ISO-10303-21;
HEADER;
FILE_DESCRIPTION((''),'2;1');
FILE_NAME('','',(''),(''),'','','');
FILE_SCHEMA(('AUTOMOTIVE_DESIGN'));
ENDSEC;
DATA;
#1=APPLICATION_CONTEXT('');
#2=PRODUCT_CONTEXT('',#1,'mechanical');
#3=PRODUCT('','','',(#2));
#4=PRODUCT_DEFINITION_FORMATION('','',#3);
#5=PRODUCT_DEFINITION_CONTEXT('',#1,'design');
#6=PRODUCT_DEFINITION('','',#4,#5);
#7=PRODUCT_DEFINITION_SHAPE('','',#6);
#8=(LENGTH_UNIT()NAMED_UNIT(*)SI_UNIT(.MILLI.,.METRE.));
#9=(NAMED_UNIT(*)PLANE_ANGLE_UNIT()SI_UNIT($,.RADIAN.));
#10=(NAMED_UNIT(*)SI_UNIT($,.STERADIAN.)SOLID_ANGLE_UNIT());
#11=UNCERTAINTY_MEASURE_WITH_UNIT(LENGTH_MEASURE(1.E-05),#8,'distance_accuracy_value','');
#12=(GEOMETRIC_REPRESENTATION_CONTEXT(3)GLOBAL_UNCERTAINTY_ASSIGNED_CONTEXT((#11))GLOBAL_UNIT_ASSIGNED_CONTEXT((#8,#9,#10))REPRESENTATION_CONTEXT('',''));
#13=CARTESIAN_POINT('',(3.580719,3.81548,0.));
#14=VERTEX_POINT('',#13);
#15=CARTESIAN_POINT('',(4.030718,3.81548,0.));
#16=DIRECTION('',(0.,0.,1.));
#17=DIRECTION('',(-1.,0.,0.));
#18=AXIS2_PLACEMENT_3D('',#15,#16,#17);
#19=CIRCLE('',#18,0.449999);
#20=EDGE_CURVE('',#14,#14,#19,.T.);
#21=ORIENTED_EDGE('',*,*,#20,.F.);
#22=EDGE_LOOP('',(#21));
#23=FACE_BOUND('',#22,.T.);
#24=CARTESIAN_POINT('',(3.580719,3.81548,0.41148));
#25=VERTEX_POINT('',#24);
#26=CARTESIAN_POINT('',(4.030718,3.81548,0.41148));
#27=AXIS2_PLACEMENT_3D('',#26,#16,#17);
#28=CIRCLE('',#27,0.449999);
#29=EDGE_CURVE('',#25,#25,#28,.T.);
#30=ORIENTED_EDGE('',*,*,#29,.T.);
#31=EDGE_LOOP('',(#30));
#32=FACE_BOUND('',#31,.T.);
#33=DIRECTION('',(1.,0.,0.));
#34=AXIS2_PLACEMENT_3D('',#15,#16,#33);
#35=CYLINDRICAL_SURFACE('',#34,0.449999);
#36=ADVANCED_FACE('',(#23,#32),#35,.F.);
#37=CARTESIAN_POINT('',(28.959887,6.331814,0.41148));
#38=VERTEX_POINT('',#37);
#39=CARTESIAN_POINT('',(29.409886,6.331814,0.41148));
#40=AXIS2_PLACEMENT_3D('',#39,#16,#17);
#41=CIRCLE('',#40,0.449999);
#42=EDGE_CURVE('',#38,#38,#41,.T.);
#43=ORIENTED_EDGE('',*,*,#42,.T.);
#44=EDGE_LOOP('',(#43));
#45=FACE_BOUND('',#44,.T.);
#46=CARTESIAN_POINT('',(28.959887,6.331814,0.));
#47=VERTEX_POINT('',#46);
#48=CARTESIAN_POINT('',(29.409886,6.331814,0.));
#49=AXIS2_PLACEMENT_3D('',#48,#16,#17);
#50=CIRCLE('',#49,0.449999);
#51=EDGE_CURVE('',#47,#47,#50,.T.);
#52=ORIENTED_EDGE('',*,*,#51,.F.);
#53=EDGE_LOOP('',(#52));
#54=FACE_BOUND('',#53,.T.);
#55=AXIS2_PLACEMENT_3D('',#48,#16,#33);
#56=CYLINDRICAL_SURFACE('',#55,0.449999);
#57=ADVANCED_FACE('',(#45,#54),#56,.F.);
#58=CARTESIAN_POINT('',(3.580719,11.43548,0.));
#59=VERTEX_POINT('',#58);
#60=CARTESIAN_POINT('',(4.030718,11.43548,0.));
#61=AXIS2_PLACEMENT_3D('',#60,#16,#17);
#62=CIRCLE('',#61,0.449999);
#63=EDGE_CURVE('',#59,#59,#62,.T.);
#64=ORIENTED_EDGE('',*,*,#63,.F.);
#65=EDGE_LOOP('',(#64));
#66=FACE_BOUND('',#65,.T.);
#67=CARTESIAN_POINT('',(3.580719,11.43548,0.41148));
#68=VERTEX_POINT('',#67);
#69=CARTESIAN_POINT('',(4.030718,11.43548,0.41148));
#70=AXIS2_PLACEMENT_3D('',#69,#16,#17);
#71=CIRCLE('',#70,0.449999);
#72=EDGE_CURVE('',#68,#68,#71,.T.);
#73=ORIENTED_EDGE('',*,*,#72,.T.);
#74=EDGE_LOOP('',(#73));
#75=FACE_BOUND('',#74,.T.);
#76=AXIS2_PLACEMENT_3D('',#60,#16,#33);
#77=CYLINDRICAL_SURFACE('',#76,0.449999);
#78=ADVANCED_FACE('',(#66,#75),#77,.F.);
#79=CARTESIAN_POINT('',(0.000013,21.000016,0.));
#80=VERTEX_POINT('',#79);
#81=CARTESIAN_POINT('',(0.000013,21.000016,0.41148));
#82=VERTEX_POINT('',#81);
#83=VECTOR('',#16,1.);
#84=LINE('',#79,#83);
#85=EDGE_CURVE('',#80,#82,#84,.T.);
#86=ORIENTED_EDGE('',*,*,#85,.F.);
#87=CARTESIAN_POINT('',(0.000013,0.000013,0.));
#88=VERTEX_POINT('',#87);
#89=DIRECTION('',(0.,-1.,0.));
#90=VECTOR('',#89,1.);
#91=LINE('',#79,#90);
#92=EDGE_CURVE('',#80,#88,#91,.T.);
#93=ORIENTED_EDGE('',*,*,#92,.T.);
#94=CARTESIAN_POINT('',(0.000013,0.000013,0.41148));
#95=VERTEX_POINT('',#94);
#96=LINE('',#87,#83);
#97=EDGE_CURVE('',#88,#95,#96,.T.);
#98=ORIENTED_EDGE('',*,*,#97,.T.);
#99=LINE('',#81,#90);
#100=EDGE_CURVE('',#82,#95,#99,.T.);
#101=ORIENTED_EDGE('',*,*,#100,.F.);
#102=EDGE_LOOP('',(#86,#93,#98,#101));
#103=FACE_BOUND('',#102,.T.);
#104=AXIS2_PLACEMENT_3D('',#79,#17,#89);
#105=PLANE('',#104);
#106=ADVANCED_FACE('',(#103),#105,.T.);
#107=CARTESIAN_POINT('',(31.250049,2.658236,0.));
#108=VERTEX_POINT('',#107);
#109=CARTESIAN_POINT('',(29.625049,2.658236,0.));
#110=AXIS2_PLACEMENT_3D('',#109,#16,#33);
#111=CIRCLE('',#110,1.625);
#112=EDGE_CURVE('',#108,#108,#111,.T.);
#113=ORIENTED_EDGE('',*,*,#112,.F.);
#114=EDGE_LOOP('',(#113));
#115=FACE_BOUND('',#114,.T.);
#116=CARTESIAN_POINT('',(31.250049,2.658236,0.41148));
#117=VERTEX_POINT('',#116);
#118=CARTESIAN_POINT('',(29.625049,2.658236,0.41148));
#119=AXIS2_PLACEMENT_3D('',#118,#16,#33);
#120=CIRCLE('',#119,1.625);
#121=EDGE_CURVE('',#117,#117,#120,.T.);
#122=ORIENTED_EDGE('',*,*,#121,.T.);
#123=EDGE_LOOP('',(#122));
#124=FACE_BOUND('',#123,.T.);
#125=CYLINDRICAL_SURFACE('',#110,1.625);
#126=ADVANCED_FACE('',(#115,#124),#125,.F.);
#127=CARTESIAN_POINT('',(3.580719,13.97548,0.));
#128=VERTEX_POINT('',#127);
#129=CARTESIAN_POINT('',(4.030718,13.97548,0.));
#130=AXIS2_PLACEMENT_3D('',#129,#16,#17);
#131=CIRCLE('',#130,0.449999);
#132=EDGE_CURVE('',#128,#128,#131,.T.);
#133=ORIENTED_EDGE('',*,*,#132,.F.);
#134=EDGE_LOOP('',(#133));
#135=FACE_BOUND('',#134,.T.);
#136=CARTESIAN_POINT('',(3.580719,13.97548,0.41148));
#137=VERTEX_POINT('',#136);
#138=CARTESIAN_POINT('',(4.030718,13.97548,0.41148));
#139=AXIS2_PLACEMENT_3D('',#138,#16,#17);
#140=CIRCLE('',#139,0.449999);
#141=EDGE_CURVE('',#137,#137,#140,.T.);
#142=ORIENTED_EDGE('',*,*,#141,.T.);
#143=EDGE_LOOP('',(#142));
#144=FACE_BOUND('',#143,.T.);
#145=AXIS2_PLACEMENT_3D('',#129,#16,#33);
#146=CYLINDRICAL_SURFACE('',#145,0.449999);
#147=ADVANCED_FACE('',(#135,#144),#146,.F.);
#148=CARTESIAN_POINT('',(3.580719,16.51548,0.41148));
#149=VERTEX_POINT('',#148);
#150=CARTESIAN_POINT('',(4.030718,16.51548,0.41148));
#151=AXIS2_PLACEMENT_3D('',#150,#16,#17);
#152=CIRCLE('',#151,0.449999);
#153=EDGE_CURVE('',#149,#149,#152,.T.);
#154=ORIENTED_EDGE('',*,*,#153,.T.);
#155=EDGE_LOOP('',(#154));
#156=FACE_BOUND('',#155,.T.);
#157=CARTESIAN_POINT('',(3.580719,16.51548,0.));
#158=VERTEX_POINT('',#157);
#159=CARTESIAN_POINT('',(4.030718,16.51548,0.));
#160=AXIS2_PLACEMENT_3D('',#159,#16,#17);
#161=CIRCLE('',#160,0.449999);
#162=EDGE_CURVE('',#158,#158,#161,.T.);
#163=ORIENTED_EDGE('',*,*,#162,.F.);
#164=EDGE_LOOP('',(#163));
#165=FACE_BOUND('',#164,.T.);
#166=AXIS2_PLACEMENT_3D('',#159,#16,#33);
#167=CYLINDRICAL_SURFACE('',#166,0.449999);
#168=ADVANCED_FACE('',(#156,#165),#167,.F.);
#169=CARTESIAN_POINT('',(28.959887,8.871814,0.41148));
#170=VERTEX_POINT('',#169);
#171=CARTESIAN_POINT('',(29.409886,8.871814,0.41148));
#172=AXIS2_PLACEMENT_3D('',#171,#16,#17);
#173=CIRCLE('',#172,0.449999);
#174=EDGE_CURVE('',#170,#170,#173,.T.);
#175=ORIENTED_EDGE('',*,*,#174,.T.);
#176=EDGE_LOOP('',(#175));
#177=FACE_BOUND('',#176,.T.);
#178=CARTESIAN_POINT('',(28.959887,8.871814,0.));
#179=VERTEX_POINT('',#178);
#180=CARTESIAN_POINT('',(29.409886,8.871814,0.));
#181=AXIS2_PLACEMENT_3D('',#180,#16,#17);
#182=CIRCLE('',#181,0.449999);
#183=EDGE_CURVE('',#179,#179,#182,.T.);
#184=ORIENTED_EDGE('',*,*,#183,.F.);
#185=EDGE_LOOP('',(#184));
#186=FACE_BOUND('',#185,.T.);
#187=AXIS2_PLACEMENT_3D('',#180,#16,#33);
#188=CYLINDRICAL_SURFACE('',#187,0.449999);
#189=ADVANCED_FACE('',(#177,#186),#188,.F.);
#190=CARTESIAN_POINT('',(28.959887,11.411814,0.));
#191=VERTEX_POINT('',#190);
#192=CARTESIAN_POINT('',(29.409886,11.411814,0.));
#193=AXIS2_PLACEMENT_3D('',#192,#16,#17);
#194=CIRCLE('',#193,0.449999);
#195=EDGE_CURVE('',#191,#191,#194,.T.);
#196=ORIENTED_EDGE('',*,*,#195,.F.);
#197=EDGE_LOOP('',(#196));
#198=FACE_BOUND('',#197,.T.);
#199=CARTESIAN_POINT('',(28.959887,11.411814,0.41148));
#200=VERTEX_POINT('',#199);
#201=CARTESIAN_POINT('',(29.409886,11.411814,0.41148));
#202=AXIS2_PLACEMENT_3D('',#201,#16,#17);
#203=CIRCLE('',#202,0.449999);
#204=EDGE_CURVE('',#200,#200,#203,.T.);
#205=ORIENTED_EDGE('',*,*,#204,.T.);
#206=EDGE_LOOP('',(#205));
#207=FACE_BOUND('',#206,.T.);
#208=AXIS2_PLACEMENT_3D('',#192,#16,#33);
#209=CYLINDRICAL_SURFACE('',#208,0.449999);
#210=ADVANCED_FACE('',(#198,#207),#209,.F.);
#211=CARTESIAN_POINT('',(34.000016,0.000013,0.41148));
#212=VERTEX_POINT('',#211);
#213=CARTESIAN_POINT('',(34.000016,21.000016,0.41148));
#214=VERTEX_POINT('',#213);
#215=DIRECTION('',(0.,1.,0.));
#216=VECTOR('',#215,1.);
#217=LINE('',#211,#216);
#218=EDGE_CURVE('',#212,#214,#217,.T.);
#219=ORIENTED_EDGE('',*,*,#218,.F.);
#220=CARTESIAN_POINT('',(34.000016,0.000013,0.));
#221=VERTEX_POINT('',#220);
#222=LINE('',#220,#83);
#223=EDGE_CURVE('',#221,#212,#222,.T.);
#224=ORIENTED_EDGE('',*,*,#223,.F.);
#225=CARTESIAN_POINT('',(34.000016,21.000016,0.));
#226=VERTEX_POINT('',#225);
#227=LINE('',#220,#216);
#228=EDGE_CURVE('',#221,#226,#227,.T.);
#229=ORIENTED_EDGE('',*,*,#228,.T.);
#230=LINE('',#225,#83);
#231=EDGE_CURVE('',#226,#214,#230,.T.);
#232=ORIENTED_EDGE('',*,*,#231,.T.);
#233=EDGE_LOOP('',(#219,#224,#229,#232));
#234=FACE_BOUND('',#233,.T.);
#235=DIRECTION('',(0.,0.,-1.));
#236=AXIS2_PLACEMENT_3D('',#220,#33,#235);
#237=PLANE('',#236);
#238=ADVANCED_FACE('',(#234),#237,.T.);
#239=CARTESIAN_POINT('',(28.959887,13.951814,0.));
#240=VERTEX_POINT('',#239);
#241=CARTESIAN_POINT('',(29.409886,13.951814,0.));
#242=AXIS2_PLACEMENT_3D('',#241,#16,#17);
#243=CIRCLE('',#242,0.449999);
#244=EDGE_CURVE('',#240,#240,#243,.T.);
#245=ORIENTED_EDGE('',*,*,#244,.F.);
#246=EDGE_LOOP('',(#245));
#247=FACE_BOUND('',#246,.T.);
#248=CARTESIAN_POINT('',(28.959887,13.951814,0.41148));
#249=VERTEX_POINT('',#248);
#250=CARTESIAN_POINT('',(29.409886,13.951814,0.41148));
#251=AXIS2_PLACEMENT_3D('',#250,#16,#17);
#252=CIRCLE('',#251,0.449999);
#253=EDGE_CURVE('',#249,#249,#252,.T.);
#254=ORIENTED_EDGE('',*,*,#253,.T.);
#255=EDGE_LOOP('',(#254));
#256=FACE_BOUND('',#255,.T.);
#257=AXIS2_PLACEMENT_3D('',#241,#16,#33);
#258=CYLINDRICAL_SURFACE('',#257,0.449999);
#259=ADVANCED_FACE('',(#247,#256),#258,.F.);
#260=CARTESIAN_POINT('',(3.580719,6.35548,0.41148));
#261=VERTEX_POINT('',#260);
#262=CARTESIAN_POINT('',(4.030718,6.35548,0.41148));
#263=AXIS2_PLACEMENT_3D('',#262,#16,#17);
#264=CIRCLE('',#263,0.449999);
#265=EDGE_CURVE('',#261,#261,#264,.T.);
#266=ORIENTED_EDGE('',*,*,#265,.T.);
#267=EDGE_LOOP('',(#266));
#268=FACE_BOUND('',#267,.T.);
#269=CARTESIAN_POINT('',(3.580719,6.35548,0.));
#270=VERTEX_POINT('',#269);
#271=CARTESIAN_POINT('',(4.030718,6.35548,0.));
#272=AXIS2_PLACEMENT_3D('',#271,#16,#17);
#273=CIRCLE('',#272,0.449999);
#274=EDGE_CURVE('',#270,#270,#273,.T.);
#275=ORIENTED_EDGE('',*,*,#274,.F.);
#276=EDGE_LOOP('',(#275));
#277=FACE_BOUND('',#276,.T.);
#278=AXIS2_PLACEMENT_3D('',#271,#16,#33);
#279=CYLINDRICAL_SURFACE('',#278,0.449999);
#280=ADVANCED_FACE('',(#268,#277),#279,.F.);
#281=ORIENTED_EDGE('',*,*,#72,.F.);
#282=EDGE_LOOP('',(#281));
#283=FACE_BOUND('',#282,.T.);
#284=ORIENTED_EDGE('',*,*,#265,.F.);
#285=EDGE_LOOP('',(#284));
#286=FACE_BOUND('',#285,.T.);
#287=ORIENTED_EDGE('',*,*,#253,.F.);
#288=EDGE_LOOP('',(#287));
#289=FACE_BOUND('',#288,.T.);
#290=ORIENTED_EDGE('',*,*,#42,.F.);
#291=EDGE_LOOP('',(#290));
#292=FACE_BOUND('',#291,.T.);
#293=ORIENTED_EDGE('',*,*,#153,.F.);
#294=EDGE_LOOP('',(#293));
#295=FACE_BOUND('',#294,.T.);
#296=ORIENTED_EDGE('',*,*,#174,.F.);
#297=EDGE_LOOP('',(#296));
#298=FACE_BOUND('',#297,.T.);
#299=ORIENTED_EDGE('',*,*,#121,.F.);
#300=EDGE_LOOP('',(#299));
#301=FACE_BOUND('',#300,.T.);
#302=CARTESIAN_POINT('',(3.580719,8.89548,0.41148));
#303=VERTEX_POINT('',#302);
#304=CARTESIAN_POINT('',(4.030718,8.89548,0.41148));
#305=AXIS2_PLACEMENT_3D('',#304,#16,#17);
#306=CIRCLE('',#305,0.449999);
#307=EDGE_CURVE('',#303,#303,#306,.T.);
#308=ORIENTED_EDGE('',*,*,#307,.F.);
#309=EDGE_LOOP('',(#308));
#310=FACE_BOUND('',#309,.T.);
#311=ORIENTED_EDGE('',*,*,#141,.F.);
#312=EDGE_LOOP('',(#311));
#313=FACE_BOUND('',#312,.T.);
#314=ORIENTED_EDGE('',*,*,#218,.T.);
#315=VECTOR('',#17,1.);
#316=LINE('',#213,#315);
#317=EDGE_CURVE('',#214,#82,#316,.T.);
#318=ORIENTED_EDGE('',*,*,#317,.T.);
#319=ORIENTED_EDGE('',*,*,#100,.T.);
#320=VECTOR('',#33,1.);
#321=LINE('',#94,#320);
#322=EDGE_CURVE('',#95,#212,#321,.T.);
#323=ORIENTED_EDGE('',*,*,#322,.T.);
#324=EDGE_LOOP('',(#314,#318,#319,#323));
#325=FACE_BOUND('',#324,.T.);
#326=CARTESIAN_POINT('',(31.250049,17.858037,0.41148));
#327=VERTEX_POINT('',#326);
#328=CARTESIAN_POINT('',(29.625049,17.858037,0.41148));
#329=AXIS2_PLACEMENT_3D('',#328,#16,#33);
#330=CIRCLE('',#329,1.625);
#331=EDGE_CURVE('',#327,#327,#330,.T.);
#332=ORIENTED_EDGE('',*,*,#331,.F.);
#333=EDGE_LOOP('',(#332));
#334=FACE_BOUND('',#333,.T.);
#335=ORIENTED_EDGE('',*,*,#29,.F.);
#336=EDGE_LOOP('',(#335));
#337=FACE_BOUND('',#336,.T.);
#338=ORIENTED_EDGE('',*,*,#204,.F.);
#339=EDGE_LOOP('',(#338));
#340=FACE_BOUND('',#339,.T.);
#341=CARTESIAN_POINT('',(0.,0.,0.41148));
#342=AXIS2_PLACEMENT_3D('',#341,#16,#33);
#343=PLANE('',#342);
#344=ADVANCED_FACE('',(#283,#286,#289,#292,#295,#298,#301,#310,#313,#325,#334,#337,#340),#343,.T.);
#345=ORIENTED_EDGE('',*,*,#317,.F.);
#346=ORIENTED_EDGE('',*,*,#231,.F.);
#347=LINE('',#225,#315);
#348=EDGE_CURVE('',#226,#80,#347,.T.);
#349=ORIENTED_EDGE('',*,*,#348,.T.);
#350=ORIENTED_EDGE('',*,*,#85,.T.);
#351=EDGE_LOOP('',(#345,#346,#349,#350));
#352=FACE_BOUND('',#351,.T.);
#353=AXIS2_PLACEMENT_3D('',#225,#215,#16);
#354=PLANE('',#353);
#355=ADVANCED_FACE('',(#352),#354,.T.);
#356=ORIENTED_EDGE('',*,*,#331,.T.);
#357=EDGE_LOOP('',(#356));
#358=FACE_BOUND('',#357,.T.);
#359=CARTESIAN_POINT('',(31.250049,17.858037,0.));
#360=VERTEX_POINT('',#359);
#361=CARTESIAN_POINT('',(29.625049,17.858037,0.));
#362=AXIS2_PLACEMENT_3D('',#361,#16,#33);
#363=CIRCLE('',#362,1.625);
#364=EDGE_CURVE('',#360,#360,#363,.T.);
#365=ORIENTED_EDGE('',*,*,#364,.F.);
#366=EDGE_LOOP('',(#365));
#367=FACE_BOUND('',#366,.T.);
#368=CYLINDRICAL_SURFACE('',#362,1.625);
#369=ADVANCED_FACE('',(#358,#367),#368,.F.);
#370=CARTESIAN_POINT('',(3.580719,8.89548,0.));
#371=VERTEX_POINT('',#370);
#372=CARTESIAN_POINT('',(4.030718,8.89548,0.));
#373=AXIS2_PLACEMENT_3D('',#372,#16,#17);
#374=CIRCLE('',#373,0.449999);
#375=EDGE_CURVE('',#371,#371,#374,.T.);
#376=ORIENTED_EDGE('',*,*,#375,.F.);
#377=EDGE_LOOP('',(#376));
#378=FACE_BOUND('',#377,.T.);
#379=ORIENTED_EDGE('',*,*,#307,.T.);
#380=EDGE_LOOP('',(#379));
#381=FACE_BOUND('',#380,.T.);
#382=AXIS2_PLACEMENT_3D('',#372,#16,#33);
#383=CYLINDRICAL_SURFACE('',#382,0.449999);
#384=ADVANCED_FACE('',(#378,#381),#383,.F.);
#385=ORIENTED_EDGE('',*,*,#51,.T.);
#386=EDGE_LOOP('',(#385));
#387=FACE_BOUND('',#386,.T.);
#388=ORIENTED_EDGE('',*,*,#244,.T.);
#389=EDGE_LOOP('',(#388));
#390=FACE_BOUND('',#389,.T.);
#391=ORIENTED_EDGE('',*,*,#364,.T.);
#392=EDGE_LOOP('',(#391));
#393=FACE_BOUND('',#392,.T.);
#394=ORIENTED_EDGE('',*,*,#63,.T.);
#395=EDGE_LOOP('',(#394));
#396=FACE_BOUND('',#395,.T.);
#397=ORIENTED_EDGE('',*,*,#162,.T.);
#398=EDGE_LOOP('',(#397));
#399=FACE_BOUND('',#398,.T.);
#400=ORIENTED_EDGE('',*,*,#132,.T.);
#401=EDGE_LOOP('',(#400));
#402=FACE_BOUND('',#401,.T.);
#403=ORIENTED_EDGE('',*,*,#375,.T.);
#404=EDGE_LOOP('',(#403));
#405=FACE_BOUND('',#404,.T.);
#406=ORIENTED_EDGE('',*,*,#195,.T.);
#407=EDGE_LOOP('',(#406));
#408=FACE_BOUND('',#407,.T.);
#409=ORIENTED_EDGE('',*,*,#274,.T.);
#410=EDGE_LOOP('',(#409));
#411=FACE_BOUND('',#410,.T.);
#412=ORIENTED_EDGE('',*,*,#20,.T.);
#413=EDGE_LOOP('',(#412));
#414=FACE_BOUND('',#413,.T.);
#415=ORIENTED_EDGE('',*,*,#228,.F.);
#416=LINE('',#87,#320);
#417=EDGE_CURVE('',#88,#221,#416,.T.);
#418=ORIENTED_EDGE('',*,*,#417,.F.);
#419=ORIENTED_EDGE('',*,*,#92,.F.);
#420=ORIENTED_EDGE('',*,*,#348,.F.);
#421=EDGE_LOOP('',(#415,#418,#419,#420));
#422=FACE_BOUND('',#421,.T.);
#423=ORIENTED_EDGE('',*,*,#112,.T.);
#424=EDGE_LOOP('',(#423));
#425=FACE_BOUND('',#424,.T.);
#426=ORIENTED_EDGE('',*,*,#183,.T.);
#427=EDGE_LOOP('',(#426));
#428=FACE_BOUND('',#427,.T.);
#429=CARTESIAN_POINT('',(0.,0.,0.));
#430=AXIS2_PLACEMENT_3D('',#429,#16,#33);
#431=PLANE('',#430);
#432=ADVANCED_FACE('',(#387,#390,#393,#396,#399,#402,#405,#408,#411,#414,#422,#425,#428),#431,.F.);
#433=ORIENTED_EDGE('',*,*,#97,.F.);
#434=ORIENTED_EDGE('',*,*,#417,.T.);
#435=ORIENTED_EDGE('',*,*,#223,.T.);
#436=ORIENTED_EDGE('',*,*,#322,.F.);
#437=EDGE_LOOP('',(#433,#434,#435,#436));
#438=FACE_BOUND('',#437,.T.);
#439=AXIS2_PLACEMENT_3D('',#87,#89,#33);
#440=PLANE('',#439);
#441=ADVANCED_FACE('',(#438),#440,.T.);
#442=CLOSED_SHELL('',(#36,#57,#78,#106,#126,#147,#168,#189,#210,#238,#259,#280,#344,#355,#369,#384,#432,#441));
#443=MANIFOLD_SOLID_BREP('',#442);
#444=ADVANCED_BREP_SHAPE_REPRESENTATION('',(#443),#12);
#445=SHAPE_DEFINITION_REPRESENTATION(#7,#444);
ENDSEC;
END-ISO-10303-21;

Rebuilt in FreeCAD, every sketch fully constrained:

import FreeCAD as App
import Part
import Sketcher
Q = App.Units.Quantity

doc = App.newDocument("Part")
body = doc.addObject("PartDesign::Body", "Body")

# Sketch on XY plane
sketch1 = body.newObject("Sketcher::SketchObject", "Sketch")
sketch1.AttachmentSupport = (doc.getObject("XY_Plane"), [""])
sketch1.MapMode = "FlatFace"
sketch1.AttachmentOffset = App.Placement(App.Vector(0, 0, 0.41148), App.Rotation())
sketch1.addGeometry([
    Part.LineSegment(App.Vector(0.000013, 21.000016, 0), App.Vector(0.000013, 0.000013, 0)),  # 0
    Part.LineSegment(App.Vector(0.000013, 0.000013, 0), App.Vector(34.000016, 0.000013, 0)),  # 1
    Part.LineSegment(App.Vector(34.000016, 0.000013, 0), App.Vector(34.000016, 21.000016, 0)),  # 2
    Part.LineSegment(App.Vector(34.000016, 21.000016, 0), App.Vector(0.000013, 21.000016, 0)),  # 3
    Part.Circle(App.Vector(4.030718, 3.81548, 0), App.Vector(0, 0, 1), 0.449999),  # 4
    Part.Circle(App.Vector(4.030718, 6.35548, 0), App.Vector(0, 0, 1), 0.449999),  # 5
    Part.Circle(App.Vector(4.030718, 8.89548, 0), App.Vector(0, 0, 1), 0.449999),  # 6
    Part.Circle(App.Vector(29.409886, 6.331814, 0), App.Vector(0, 0, 1), 0.449999),  # 7
    Part.Circle(App.Vector(29.409886, 8.871814, 0), App.Vector(0, 0, 1), 0.449999),  # 8
    Part.Circle(App.Vector(4.030718, 11.43548, 0), App.Vector(0, 0, 1), 0.449999),  # 9
    Part.Circle(App.Vector(4.030718, 13.97548, 0), App.Vector(0, 0, 1), 0.449999),  # 10
    Part.Circle(App.Vector(4.030718, 16.51548, 0), App.Vector(0, 0, 1), 0.449999),  # 11
    Part.Circle(App.Vector(29.409886, 11.411814, 0), App.Vector(0, 0, 1), 0.449999),  # 12
    Part.Circle(App.Vector(29.409886, 13.951814, 0), App.Vector(0, 0, 1), 0.449999),  # 13
], False)
sketch1.addConstraint([
    Sketcher.Constraint("Coincident", 0, 2, 1, 1),
    Sketcher.Constraint("Coincident", 1, 2, 2, 1),
    Sketcher.Constraint("Coincident", 2, 2, 3, 1),
    Sketcher.Constraint("Coincident", 3, 2, 0, 1),
    Sketcher.Constraint("Vertical", 0),
    Sketcher.Constraint("Horizontal", 1),
    Sketcher.Constraint("Vertical", 2),
    Sketcher.Constraint("Horizontal", 3),
    Sketcher.Constraint("Equal", 4, 5),
    Sketcher.Constraint("Equal", 5, 6),
    Sketcher.Constraint("Equal", 6, 7),
    Sketcher.Constraint("Equal", 7, 8),
    Sketcher.Constraint("Equal", 8, 9),
    Sketcher.Constraint("Equal", 9, 10),
    Sketcher.Constraint("Equal", 10, 11),
    Sketcher.Constraint("Equal", 11, 12),
    Sketcher.Constraint("Equal", 12, 13),
    Sketcher.Constraint("Vertical", 4, 3, 5, 3),
    Sketcher.Constraint("Vertical", 5, 3, 6, 3),
    Sketcher.Constraint("Vertical", 7, 3, 8, 3),
    Sketcher.Constraint("Vertical", 6, 3, 9, 3),
    Sketcher.Constraint("Vertical", 9, 3, 10, 3),
    Sketcher.Constraint("Vertical", 10, 3, 11, 3),
    Sketcher.Constraint("Vertical", 8, 3, 12, 3),
    Sketcher.Constraint("Vertical", 12, 3, 13, 3),
    Sketcher.Constraint("Diameter", 4, Q("0.899998 mm")),
    Sketcher.Constraint("DistanceY", 4, 3, 11, 3, Q("12.7 mm")),
    Sketcher.Constraint("DistanceY", 4, 3, 5, 3, Q("2.54 mm")),
    Sketcher.Constraint("DistanceY", 5, 3, 6, 3, Q("2.54 mm")),
    Sketcher.Constraint("DistanceY", 7, 3, 8, 3, Q("2.54 mm")),
    Sketcher.Constraint("DistanceY", 6, 3, 9, 3, Q("2.54 mm")),
    Sketcher.Constraint("DistanceY", 9, 3, 10, 3, Q("2.54 mm")),
    Sketcher.Constraint("DistanceY", 8, 3, 12, 3, Q("2.54 mm")),
    Sketcher.Constraint("DistanceY", 12, 3, 13, 3, Q("2.54 mm")),
    Sketcher.Constraint("DistanceY", 1, 2, 7, 3, Q("6.331801 mm")),
    Sketcher.Constraint("DistanceX", 4, 3, 1, 2, Q("29.969298 mm")),
    Sketcher.Constraint("DistanceX", 1, 1, 1, 2, Q("34.000003 mm")),
    Sketcher.Constraint("DistanceY", 0, 2, 0, 1, Q("21.000004 mm")),
    Sketcher.Constraint("DistanceY", -1, 1, 4, 3, Q("3.81548 mm")),
    Sketcher.Constraint("DistanceX", 5, 3, 7, 3, Q("25.379168 mm")),
    Sketcher.Constraint("DistanceX", -1, 1, 4, 3, Q("4.030718 mm")),
    Sketcher.Constraint("DistanceY", -1, 1, 7, 3, Q("6.331814 mm")),
])
pad1 = body.newObject("PartDesign::Pad", "Pad")
pad1.Profile = sketch1
pad1.Length = 0.41148
pad1.Reversed = True

# Sketch on XY plane
sketch2 = body.newObject("Sketcher::SketchObject", "Sketch001")
sketch2.AttachmentSupport = (doc.getObject("XY_Plane"), [""])
sketch2.MapMode = "FlatFace"
sketch2.AttachmentOffset = App.Placement(App.Vector(0, 0, 0.41148), App.Rotation())
sketch2.addGeometry([
    Part.Circle(App.Vector(29.625049, 17.858037, 0), App.Vector(0, 0, 1), 1.625),
    Part.Circle(App.Vector(29.625049, 2.658236, 0), App.Vector(0, 0, 1), 1.625),
], False)
sketch2.addConstraint([
    Sketcher.Constraint("Equal", 0, 1),
    Sketcher.Constraint("Vertical", 0, 3, 1, 3),
    Sketcher.Constraint("Diameter", 0, Q("3.25 mm")),
    Sketcher.Constraint("DistanceY", 1, 3, 0, 3, Q("15.199801 mm")),
    Sketcher.Constraint("DistanceX", -1, 1, 0, 3, Q("29.625049 mm")),
    Sketcher.Constraint("DistanceY", -1, 1, 0, 3, Q("17.858037 mm")),
])
pocket1 = body.newObject("PartDesign::Pocket", "Pocket")
pocket1.Profile = sketch2
pocket1.Type = "ThroughAll"

doc.recompute()
